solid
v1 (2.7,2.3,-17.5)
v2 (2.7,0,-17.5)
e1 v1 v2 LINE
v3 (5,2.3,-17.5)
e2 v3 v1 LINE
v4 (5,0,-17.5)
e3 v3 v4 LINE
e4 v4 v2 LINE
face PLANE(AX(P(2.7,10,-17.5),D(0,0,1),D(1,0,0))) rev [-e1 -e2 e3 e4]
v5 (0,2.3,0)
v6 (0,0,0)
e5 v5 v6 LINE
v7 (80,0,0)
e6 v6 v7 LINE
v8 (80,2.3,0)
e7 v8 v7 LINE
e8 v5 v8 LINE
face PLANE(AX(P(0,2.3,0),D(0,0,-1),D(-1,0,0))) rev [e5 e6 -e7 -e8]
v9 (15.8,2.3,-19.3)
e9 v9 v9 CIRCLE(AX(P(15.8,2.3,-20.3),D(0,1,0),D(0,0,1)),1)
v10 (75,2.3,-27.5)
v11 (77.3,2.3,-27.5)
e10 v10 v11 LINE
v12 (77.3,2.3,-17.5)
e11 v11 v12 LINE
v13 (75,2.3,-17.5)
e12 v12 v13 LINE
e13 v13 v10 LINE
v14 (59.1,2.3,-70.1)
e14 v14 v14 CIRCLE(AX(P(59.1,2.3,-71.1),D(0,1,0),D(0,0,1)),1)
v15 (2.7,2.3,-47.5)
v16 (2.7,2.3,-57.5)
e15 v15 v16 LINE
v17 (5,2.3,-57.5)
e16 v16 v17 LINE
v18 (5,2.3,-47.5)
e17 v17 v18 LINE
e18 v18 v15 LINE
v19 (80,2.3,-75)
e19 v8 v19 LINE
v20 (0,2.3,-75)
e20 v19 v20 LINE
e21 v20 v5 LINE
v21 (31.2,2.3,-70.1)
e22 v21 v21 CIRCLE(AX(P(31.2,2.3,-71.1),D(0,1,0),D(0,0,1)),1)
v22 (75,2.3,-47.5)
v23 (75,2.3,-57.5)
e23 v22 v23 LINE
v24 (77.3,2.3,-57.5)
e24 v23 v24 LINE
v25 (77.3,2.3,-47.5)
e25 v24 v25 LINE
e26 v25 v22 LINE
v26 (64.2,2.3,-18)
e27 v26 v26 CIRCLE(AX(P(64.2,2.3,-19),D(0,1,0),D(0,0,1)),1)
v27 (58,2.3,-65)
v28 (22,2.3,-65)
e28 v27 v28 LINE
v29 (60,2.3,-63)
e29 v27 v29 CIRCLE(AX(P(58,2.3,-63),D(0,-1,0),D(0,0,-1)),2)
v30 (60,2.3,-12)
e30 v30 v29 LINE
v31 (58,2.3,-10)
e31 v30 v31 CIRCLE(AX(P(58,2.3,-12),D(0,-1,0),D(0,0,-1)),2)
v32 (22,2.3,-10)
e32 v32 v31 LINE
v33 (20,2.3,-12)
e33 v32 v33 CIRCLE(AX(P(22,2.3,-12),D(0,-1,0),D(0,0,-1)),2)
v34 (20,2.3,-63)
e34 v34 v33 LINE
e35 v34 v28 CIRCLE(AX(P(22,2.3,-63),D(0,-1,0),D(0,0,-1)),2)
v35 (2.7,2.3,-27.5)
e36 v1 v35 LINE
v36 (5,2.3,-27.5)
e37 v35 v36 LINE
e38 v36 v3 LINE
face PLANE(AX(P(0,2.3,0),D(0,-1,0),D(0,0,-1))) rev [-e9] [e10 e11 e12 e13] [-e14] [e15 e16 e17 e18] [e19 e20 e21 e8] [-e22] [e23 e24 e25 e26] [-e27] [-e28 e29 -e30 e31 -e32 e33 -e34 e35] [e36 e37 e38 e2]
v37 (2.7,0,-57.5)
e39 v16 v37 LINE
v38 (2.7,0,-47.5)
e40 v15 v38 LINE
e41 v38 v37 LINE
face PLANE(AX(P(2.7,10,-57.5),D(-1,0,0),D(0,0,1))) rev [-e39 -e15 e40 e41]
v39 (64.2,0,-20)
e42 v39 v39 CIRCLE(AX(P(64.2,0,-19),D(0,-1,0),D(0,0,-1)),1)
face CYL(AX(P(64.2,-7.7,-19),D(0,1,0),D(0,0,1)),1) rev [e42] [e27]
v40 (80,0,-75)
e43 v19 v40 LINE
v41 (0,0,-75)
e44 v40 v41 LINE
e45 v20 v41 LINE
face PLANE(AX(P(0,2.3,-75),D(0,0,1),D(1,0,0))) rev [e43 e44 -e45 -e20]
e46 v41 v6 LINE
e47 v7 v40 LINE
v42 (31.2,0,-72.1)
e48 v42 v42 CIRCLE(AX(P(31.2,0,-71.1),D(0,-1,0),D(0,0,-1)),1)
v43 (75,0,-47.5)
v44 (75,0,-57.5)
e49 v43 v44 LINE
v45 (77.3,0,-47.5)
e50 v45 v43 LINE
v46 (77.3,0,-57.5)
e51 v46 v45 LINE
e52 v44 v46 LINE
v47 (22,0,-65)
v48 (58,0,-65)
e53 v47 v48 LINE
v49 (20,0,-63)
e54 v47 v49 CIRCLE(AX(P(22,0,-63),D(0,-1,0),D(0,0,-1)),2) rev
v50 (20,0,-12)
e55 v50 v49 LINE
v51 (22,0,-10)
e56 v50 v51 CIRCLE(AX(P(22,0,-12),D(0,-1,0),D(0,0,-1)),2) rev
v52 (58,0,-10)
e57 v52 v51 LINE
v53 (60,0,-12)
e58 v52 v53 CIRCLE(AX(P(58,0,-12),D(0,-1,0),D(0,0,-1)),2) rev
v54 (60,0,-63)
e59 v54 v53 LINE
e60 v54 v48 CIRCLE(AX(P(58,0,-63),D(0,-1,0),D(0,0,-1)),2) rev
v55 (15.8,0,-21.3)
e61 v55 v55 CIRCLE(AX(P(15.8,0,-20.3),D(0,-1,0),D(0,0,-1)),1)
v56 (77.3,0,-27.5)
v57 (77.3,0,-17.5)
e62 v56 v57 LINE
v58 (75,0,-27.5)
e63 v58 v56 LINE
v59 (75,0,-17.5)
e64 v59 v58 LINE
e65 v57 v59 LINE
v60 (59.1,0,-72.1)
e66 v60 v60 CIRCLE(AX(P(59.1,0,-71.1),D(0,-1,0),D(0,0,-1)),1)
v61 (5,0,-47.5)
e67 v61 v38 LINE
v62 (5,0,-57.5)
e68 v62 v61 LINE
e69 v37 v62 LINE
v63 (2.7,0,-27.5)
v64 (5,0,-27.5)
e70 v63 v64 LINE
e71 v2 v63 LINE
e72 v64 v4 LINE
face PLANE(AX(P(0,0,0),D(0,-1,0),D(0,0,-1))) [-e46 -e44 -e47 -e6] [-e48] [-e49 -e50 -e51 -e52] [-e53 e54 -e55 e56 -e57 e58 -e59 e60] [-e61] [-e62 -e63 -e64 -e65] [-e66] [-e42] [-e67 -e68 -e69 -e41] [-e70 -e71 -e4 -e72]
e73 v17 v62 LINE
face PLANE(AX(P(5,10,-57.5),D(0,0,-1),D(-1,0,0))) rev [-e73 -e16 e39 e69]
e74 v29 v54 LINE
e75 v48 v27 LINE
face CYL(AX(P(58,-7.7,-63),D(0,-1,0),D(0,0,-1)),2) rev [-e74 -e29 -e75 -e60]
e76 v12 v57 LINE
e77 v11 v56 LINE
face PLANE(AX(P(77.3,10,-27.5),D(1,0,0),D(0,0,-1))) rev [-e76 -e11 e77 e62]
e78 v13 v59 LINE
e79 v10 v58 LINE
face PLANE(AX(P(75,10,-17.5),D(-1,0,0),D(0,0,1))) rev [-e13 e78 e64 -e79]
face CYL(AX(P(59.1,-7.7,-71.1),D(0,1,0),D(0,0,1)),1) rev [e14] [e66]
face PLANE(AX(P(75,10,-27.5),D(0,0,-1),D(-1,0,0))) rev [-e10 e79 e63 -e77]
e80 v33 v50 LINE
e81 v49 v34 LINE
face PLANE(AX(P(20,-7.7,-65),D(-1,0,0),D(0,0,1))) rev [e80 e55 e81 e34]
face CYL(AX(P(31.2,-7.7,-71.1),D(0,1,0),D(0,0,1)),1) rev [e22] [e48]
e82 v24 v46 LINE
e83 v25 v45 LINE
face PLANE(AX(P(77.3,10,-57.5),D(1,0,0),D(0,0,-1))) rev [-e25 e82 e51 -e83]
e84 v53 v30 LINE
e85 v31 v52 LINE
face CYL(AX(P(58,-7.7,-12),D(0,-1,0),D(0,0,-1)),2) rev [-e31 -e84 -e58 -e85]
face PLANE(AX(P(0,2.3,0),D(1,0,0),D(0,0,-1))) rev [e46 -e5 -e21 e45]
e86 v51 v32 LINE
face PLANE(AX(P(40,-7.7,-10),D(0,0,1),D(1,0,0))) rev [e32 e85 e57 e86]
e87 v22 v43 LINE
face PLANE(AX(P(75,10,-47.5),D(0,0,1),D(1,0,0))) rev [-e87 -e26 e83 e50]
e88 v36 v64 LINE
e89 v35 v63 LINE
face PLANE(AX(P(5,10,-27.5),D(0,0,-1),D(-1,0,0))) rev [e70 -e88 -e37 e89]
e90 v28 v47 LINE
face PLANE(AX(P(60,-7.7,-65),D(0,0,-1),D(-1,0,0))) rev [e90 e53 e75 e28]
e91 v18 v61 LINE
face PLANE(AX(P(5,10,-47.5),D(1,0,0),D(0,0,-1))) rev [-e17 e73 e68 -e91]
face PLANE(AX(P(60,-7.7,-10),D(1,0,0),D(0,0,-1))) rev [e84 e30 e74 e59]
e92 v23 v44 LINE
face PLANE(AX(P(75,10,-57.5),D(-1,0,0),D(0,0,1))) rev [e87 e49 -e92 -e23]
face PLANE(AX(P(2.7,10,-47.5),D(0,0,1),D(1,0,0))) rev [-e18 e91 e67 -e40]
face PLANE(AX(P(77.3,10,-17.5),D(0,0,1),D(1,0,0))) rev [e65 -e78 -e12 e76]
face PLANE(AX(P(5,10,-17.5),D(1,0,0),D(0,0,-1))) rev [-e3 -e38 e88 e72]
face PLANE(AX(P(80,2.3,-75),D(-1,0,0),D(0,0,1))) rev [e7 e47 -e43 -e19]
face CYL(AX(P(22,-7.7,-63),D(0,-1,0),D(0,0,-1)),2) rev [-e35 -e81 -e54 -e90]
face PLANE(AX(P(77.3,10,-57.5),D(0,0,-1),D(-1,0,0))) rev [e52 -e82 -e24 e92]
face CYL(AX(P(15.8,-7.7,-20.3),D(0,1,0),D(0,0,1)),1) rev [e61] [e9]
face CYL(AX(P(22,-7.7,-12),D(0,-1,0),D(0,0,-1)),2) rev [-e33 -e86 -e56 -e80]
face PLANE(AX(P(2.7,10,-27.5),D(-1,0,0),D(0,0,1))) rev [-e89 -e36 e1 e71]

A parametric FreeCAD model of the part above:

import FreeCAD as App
import Part
import Sketcher

V = App.Vector
Q = App.Units.Quantity


def edges_at(feature, points):
    """Names of the edges that pass closest to the given points."""
    edges = feature.Shape.Edges
    near = lambda p: min(range(len(edges)), key=lambda i: edges[i].distToShape(Part.Vertex(*p))[0])
    return sorted({f"Edge{near(p) + 1}" for p in points})


def add_polygon(sketch, points):
    """Adds a closed chain of lines whose ends are joined by coincident constraints."""
    first, n = sketch.GeometryCount, len(points)
    for a, b in zip(points, points[1:] + points[:1]):
        sketch.addGeometry(Part.LineSegment(App.Vector(*a, 0), App.Vector(*b, 0)), False)
    for i in range(n):
        sketch.addConstraint(Sketcher.Constraint("Coincident", first + i, 2, first + (i + 1) % n, 1))

doc = App.newDocument("Part")
body = doc.addObject("PartDesign::Body", "Body")

sketch1 = body.newObject("Sketcher::SketchObject", "Sketch")
sketch1.AttachmentSupport = (doc.getObject("XZ_Plane"), [""])
sketch1.MapMode = "FlatFace"
add_polygon(sketch1, [(0, -75), (0, 0), (80, 0), (80, -75)])
sketch1.addConstraint([
    Sketcher.Constraint("Vertical", 0),
    Sketcher.Constraint("Horizontal", 1),
    Sketcher.Constraint("Vertical", 2),
    Sketcher.Constraint("Horizontal", 3),
    Sketcher.Constraint("Coincident", 0, 2, -1, 1),
    Sketcher.Constraint("DistanceX", 1, 1, 1, 2, Q("80 mm")),
    Sketcher.Constraint("DistanceY", 0, 1, 0, 2, Q("75 mm")),
])
pad1 = body.newObject("PartDesign::Pad", "Pad")
pad1.Profile = sketch1
pad1.Length = 2.3
pad1.Reversed = True

sketch2 = body.newObject("Sketcher::SketchObject", "Sketch001")
sketch2.AttachmentSupport = (doc.getObject("XZ_Plane"), [""])
sketch2.MapMode = "FlatFace"
add_polygon(sketch2, [(2.7, -47.5), (2.7, -57.5), (5, -57.5), (5, -47.5)])
add_polygon(sketch2, [(2.7, -17.5), (2.7, -27.5), (5, -27.5), (5, -17.5)])
add_polygon(sketch2, [(75, -47.5), (75, -57.5), (77.3, -57.5), (77.3, -47.5)])
add_polygon(sketch2, [(75, -17.5), (75, -27.5), (77.3, -27.5), (77.3, -17.5)])
sketch2.addConstraint([
    Sketcher.Constraint("Vertical", 0),
    Sketcher.Constraint("Horizontal", 1),
    Sketcher.Constraint("Vertical", 2),
    Sketcher.Constraint("Horizontal", 3),
    Sketcher.Constraint("Vertical", 4),
    Sketcher.Constraint("Horizontal", 5),
    Sketcher.Constraint("Vertical", 6),
    Sketcher.Constraint("Horizontal", 7),
    Sketcher.Constraint("Vertical", 8),
    Sketcher.Constraint("Horizontal", 9),
    Sketcher.Constraint("Vertical", 10),
    Sketcher.Constraint("Horizontal", 11),
    Sketcher.Constraint("Vertical", 12),
    Sketcher.Constraint("Horizontal", 13),
    Sketcher.Constraint("Vertical", 14),
    Sketcher.Constraint("Horizontal", 15),
    Sketcher.Constraint("Horizontal", 1, 2, 8, 2),
    Sketcher.Constraint("Horizontal", 3, 2, 10, 2),
    Sketcher.Constraint("Horizontal", 5, 2, 12, 2),
    Sketcher.Constraint("Horizontal", 7, 2, 14, 2),
    Sketcher.Constraint("Vertical", 3, 2, 4, 2),
    Sketcher.Constraint("Vertical", 2, 2, 5, 2),
    Sketcher.Constraint("Vertical", 11, 2, 12, 2),
    Sketcher.Constraint("Vertical", 10, 2, 13, 2),
    Sketcher.Constraint("Equal", 7, 9),
    Sketcher.Constraint("Equal", 2, 4),
    Sketcher.Constraint("DistanceY", 0, 2, 0, 1, Q("10 mm")),
    Sketcher.Constraint("DistanceX", 1, 1, 1, 2, Q("2.3 mm")),
    Sketcher.Constraint("DistanceX", -1, 1, 1, 2, Q("5 mm")),
    Sketcher.Constraint("DistanceX", -1, 1, 8, 2, Q("75 mm")),
    Sketcher.Constraint("DistanceY", 3, 2, 4, 2, Q("20 mm")),
    Sketcher.Constraint("DistanceY", 0, 2, -1, 1, Q("57.5 mm")),
])
pocket1 = body.newObject("PartDesign::Pocket", "Pocket")
pocket1.Profile = sketch2
pocket1.Length = 10

sketch3 = body.newObject("Sketcher::SketchObject", "Sketch002")
sketch3.AttachmentSupport = (doc.getObject("XZ_Plane"), [""])
sketch3.MapMode = "FlatFace"
sketch3.AttachmentOffset = App.Placement(V(0, 0, -2.3), App.Rotation())
sketch3.addGeometry([
    Part.Circle(V(31.2, -71.1, 0), V(0, 0, 1), 1),
    Part.Circle(V(59.1, -71.1, 0), V(0, 0, 1), 1),
    Part.Circle(V(15.8, -20.3, 0), V(0, 0, 1), 1),
    Part.Circle(V(64.2, -19, 0), V(0, 0, 1), 1),
], False)
sketch3.addConstraint([
    Sketcher.Constraint("Equal", 0, 1),
    Sketcher.Constraint("Equal", 1, 2),
    Sketcher.Constraint("Equal", 2, 3),
    Sketcher.Constraint("Horizontal", 0, 3, 1, 3),
    Sketcher.Constraint("Diameter", 0, Q("2 mm")),
    Sketcher.Constraint("DistanceY", 3, 3, -1, 1, Q("19 mm")),
    Sketcher.Constraint("DistanceX", 0, 3, 3, 3, Q("33 mm")),
    Sketcher.Constraint("DistanceX", -1, 1, 0, 3, Q("31.2 mm")),
    Sketcher.Constraint("DistanceY", 0, 3, -1, 1, Q("71.1 mm")),
    Sketcher.Constraint("DistanceX", -1, 1, 1, 3, Q("59.1 mm")),
    Sketcher.Constraint("DistanceX", -1, 1, 2, 3, Q("15.8 mm")),
    Sketcher.Constraint("DistanceY", 2, 3, -1, 1, Q("20.3 mm")),
])
pocket2 = body.newObject("PartDesign::Pocket", "Pocket001")
pocket2.Profile = sketch3
pocket2.Length = 10
pocket2.Reversed = True

sketch4 = body.newObject("Sketcher::SketchObject", "Sketch003")
sketch4.AttachmentSupport = (doc.getObject("XZ_Plane"), [""])
sketch4.MapMode = "FlatFace"
sketch4.AttachmentOffset = App.Placement(V(0, 0, -2.3), App.Rotation())
add_polygon(sketch4, [(20, -10), (60, -10), (60, -65), (20, -65)])
sketch4.addConstraint([
    Sketcher.Constraint("Horizontal", 0),
    Sketcher.Constraint("Vertical", 1),
    Sketcher.Constraint("Horizontal", 2),
    Sketcher.Constraint("Vertical", 3),
    Sketcher.Constraint("DistanceX", 0, 1, 0, 2, Q("40 mm")),
    Sketcher.Constraint("DistanceY", 1, 2, 1, 1, Q("55 mm")),
    Sketcher.Constraint("DistanceX", -1, 1, 0, 2, Q("60 mm")),
    Sketcher.Constraint("DistanceY", 0, 2, -1, 1, Q("10 mm")),
])
pocket3 = body.newObject("PartDesign::Pocket", "Pocket002")
pocket3.Profile = sketch4
pocket3.Length = 10
pocket3.Reversed = True
doc.recompute()

fillet = body.newObject("PartDesign::Fillet", "Fillet")
fillet.Base = (pocket3, edges_at(pocket3, [
    (60, 1.15, -10),
    (20, 1.15, -10),
    (20, 1.15, -65),
    (60, 1.15, -65),
]))
fillet.Radius = 2

doc.recompute()
